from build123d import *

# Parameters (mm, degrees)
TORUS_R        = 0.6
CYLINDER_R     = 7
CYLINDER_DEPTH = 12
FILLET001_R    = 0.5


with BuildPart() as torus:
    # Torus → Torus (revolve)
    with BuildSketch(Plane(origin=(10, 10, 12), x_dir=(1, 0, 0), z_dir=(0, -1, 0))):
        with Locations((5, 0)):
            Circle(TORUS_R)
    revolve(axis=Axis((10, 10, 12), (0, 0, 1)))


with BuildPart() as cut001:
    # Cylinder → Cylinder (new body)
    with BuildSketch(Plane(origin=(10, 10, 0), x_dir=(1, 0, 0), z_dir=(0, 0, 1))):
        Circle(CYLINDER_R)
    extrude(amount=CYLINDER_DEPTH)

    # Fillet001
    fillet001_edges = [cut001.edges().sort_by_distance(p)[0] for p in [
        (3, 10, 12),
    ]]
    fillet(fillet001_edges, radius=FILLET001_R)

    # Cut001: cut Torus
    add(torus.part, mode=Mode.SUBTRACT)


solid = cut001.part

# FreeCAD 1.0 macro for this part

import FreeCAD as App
import Part
import Sketcher
Q = App.Units.Quantity


def edges_at(feature, points):
    """Names of the edges that pass closest to the given points."""
    edges = feature.Shape.Edges
    near = lambda p: min(range(len(edges)), key=lambda i: edges[i].distToShape(Part.Vertex(*p))[0])
    return sorted({f"Edge{near(p) + 1}" for p in points})

doc = App.newDocument("Part")
params = doc.addObject("Spreadsheet::Sheet", "Params")
for row, (alias, value) in enumerate([
    ("sketch1_diameter", "1.2 mm"),
    ("sketch1_height", "10 mm"),
    ("revolution_angle", "360 deg"),
    ("sketch2_diameter", "14 mm"),
    ("pad1_length", "12 mm"),
    ("fillet_radius", "0.5 mm"),
], start=1):
    params.set(f"A{row}", alias)
    params.set(f"B{row}", "=" + value)
    params.setAlias(f"B{row}", alias)

body = doc.addObject("PartDesign::Body", "Body")

# Sketch on XZ plane
sketch1 = body.newObject("Sketcher::SketchObject", "Sketch")
sketch1.AttachmentSupport = (doc.getObject("XZ_Plane"), [""])
sketch1.MapMode = "FlatFace"
sketch1.AttachmentOffset = App.Placement(App.Vector(0, 0, -10), App.Rotation())
sketch1.addGeometry(Part.Circle(App.Vector(15, 12, 0), App.Vector(0, 0, 1), 0.6), False)
sketch1.addGeometry(Part.LineSegment(App.Vector(10, 12, 0), App.Vector(10, 22, 0)), True)  # axis
sketch1.addConstraint([
    Sketcher.Constraint("Vertical", 1),
    Sketcher.Constraint("Horizontal", 0, 3, 1, 1),
    Sketcher.Constraint("Diameter", 0, Q("1.2 mm")),
    Sketcher.Constraint("DistanceY", 1, 1, 1, 2, Q("10 mm")),
    Sketcher.Constraint("DistanceX", -1, 1, 0, 3, Q("15 mm")),
    Sketcher.Constraint("DistanceY", -1, 1, 0, 3, Q("12 mm")),
    Sketcher.Constraint("DistanceX", -1, 1, 1, 1, Q("10 mm")),
])
sketch1.setExpression("Constraints[2]", "Params.sketch1_diameter")
sketch1.setExpression("Constraints[3]", "Params.sketch1_height")
revolution = body.newObject("PartDesign::Revolution", "Revolution")
revolution.Profile = sketch1
revolution.ReferenceAxis = (sketch1, ["Axis0"])
revolution.setExpression("Angle", "Params.revolution_angle")
body2 = doc.addObject("PartDesign::Body", "Body001")

# Sketch on XY plane
sketch2 = body2.newObject("Sketcher::SketchObject", "Sketch001")
sketch2.AttachmentSupport = (doc.getObject("XY_Plane001"), [""])
sketch2.MapMode = "FlatFace"
sketch2.addGeometry(Part.Circle(App.Vector(10, 10, 0), App.Vector(0, 0, 1), 7), False)
sketch2.addConstraint([
    Sketcher.Constraint("Diameter", 0, Q("14 mm")),
    Sketcher.Constraint("DistanceX", -1, 1, 0, 3, Q("10 mm")),
    Sketcher.Constraint("DistanceY", -1, 1, 0, 3, Q("10 mm")),
])
sketch2.setExpression("Constraints[0]", "Params.sketch2_diameter")
pad1 = body2.newObject("PartDesign::Pad", "Pad")
pad1.Profile = sketch2
pad1.setExpression("Length", "Params.pad1_length")
doc.recompute()

fillet = body2.newObject("PartDesign::Fillet", "Fillet")
fillet.Base = (pad1, edges_at(pad1, [(3, 10, 12)]))
fillet.setExpression("Radius", "Params.fillet_radius")
doc.recompute()

boolean = body2.newObject("PartDesign::Boolean", "Boolean")
boolean.Type = "Cut"
boolean.addObjects([body])

doc.recompute()
